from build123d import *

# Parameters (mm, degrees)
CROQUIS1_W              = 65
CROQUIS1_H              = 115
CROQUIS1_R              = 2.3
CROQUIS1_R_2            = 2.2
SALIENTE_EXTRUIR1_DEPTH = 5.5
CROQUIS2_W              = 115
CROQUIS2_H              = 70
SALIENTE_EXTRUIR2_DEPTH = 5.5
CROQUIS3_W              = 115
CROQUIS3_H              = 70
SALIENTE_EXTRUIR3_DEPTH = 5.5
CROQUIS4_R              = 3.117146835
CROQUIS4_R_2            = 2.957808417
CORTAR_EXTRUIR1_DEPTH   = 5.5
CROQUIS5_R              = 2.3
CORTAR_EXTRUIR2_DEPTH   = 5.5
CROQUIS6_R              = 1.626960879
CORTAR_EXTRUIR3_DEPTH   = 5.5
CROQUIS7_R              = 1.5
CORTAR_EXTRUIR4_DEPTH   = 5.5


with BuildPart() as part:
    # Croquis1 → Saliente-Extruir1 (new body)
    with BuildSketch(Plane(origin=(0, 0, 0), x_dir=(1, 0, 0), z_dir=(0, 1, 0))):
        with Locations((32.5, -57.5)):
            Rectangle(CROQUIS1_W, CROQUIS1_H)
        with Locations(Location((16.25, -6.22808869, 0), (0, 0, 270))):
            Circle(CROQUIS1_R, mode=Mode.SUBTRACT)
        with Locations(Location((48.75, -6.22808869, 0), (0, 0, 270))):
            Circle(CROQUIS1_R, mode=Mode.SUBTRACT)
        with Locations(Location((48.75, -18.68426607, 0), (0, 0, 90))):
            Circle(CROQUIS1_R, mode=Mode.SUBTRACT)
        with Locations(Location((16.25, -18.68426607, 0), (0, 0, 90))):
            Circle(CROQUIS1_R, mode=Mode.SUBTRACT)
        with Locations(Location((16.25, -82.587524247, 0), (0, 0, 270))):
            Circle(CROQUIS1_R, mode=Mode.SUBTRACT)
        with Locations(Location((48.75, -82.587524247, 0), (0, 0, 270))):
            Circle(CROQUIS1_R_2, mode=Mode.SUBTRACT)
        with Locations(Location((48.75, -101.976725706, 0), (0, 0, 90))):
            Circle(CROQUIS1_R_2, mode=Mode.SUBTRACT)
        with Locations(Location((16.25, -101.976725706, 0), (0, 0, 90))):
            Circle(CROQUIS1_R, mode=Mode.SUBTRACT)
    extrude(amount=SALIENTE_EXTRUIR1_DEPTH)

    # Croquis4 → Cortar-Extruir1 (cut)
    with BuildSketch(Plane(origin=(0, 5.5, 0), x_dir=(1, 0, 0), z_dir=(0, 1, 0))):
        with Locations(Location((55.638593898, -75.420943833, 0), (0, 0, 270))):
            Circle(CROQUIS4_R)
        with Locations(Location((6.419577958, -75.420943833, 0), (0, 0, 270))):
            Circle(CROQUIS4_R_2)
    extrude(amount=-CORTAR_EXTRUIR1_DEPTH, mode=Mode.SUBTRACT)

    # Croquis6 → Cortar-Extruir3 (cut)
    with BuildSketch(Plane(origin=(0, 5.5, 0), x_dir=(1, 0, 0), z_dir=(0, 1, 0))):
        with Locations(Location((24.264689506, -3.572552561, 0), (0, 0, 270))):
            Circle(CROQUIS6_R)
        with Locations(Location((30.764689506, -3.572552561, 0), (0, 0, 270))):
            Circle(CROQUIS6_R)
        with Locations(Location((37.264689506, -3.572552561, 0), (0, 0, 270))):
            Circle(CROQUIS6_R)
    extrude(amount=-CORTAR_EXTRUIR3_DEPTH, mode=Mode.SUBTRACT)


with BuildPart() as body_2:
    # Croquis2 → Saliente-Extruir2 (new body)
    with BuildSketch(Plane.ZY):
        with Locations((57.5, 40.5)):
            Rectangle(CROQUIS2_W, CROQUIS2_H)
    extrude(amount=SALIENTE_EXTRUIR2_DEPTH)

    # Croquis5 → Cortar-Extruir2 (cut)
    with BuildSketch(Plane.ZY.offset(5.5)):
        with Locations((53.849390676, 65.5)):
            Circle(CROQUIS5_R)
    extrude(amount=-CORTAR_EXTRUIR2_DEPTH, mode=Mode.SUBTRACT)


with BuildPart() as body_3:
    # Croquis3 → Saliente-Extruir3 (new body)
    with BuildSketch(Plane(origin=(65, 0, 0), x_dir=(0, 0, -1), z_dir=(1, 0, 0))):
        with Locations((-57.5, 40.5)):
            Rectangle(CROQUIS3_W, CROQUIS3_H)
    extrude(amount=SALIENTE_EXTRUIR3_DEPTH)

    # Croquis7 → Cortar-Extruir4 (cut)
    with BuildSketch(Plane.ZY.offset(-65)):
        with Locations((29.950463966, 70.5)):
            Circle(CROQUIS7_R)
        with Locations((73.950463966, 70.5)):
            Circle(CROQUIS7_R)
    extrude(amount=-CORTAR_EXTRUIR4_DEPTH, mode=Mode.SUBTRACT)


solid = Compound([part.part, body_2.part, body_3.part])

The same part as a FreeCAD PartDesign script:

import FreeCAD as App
import Part
import Sketcher


def add_polygon(sketch, points):
    """Adds a closed chain of lines whose ends are joined by coincident constraints."""
    first, n = sketch.GeometryCount, len(points)
    for a, b in zip(points, points[1:] + points[:1]):
        sketch.addGeometry(Part.LineSegment(App.Vector(*a, 0), App.Vector(*b, 0)), False)
    for i in range(n):
        sketch.addConstraint(Sketcher.Constraint("Coincident", first + i, 2, first + (i + 1) % n, 1))

doc = App.newDocument("Part")
body = doc.addObject("PartDesign::Body", "Body")

sketch1 = body.newObject("Sketcher::SketchObject", "Sketch")
sketch1.AttachmentSupport = (doc.getObject("XZ_Plane"), [""])
sketch1.MapMode = "FlatFace"
add_polygon(sketch1, [(0, 0), (0, 115), (65, 115), (65, 0)])
sketch1.addGeometry(Part.Circle(App.Vector(16.25, 101.976726, 0), App.Vector(0, 0, 1), 2.3), False)
sketch1.addGeometry(Part.Circle(App.Vector(16.25, 82.587524, 0), App.Vector(0, 0, 1), 2.3), False)
sketch1.addGeometry(Part.Circle(App.Vector(48.75, 101.976726, 0), App.Vector(0, 0, 1), 2.2), False)
sketch1.addGeometry(Part.Circle(App.Vector(48.75, 82.587524, 0), App.Vector(0, 0, 1), 2.2), False)
sketch1.addGeometry(Part.Circle(App.Vector(16.25, 18.684266, 0), App.Vector(0, 0, 1), 2.3), False)
sketch1.addGeometry(Part.Circle(App.Vector(16.25, 6.228089, 0), App.Vector(0, 0, 1), 2.3), False)
sketch1.addGeometry(Part.Circle(App.Vector(48.75, 18.684266, 0), App.Vector(0, 0, 1), 2.3), False)
sketch1.addGeometry(Part.Circle(App.Vector(48.75, 6.228089, 0), App.Vector(0, 0, 1), 2.3), False)
sketch1.addConstraint([
    Sketcher.Constraint("Vertical", 0),
    Sketcher.Constraint("Horizontal", 1),
    Sketcher.Constraint("Vertical", 2),
    Sketcher.Constraint("Horizontal", 3),
    Sketcher.Constraint("Coincident", 3, 2, -1, 1),
    Sketcher.Constraint("Equal", 4, 5),
    Sketcher.Constraint("Equal", 6, 7),
    Sketcher.Constraint("Equal", 5, 8),
    Sketcher.Constraint("Equal", 8, 9),
    Sketcher.Constraint("Equal", 9, 10),
    Sketcher.Constraint("Equal", 10, 11),
    Sketcher.Constraint("Horizontal", 4, 3, 6, 3),
    Sketcher.Constraint("Horizontal", 5, 3, 7, 3),
    Sketcher.Constraint("Horizontal", 8, 3, 10, 3),
    Sketcher.Constraint("Horizontal", 9, 3, 11, 3),
    Sketcher.Constraint("Vertical", 4, 3, 5, 3),
    Sketcher.Constraint("Vertical", 6, 3, 7, 3),
    Sketcher.Constraint("Vertical", 5, 3, 8, 3),
    Sketcher.Constraint("Vertical", 8, 3, 9, 3),
    Sketcher.Constraint("Vertical", 7, 3, 10, 3),
    Sketcher.Constraint("Vertical", 10, 3, 11, 3),
    Sketcher.Constraint("Diameter", 4, 4.6),
    Sketcher.Constraint("Diameter", 6, 4.4),
    Sketcher.Constraint("DistanceX", 1, 1, 1, 2, 65.0),
    Sketcher.Constraint("DistanceY", 0, 1, 0, 2, 115.0),
    Sketcher.Constraint("DistanceX", 4, 3, 6, 3, 32.5),
    Sketcher.Constraint("DistanceX", -1, 1, 4, 3, 16.25),
    Sketcher.Constraint("DistanceY", 5, 3, 4, 3, 19.389201),
    Sketcher.Constraint("DistanceY", -1, 1, 9, 3, 6.228089),
    Sketcher.Constraint("DistanceY", 8, 3, 5, 3, 63.903258),
    Sketcher.Constraint("DistanceY", -1, 1, 4, 3, 101.976726),
])
pad1 = body.newObject("PartDesign::Pad", "Pad")
pad1.Profile = sketch1
pad1.Length = 5.5
pad1.Reversed = True

sketch2 = body.newObject("Sketcher::SketchObject", "Sketch001")
sketch2.AttachmentSupport = (doc.getObject("XZ_Plane"), [""])
sketch2.MapMode = "FlatFace"
sketch2.AttachmentOffset = App.Placement(App.Vector(0, 0, -5.5), App.Rotation())
sketch2.addGeometry([
    Part.Circle(App.Vector(55.638594, 75.420944, 0), App.Vector(0, 0, 1), 3.117147),
    Part.Circle(App.Vector(6.419578, 75.420944, 0), App.Vector(0, 0, 1), 2.957808),
], False)
sketch2.addConstraint([
    Sketcher.Constraint("Horizontal", 0, 3, 1, 3),
    Sketcher.Constraint("Diameter", 0, 6.234294),
    Sketcher.Constraint("Diameter", 1, 5.915617),
    Sketcher.Constraint("DistanceX", -1, 1, 0, 3, 55.638594),
    Sketcher.Constraint("DistanceY", -1, 1, 0, 3, 75.420944),
    Sketcher.Constraint("DistanceX", -1, 1, 1, 3, 6.419578),
])
pocket1 = body.newObject("PartDesign::Pocket", "Pocket")
pocket1.Profile = sketch2
pocket1.Length = 5.5
pocket1.Reversed = True

sketch3 = body.newObject("Sketcher::SketchObject", "Sketch002")
sketch3.AttachmentSupport = (doc.getObject("XZ_Plane"), [""])
sketch3.MapMode = "FlatFace"
sketch3.AttachmentOffset = App.Placement(App.Vector(0, 0, -5.5), App.Rotation())
sketch3.addGeometry([
    Part.Circle(App.Vector(24.26469, 3.572553, 0), App.Vector(0, 0, 1), 1.626961),
    Part.Circle(App.Vector(30.76469, 3.572553, 0), App.Vector(0, 0, 1), 1.626961),
    Part.Circle(App.Vector(37.26469, 3.572553, 0), App.Vector(0, 0, 1), 1.626961),
], False)
sketch3.addConstraint([
    Sketcher.Constraint("Equal", 0, 1),
    Sketcher.Constraint("Equal", 1, 2),
    Sketcher.Constraint("Horizontal", 0, 3, 1, 3),
    Sketcher.Constraint("Horizontal", 1, 3, 2, 3),
    Sketcher.Constraint("DistanceX", 0, 3, 2, 3, 13.0),
    Sketcher.Constraint("DistanceX", 0, 3, 1, 3, 6.5),
    Sketcher.Constraint("Diameter", 0, 3.253922),
    Sketcher.Constraint("DistanceX", -1, 1, 0, 3, 24.26469),
    Sketcher.Constraint("DistanceY", -1, 1, 0, 3, 3.572553),
])
pocket2 = body.newObject("PartDesign::Pocket", "Pocket001")
pocket2.Profile = sketch3
pocket2.Length = 5.5
pocket2.Reversed = True
body2 = doc.addObject("PartDesign::Body", "Body001")

sketch4 = body2.newObject("Sketcher::SketchObject", "Sketch003")
sketch4.AttachmentSupport = (doc.getObject("YZ_Plane001"), [""])
sketch4.MapMode = "FlatFace"
add_polygon(sketch4, [(75.5, 0), (5.5, 0), (5.5, 115), (75.5, 115)])
sketch4.addConstraint([
    Sketcher.Constraint("Horizontal", 0),
    Sketcher.Constraint("Vertical", 1),
    Sketcher.Constraint("Horizontal", 2),
    Sketcher.Constraint("Vertical", 3),
    Sketcher.Constraint("PointOnObject", 0, 2, -1),
    Sketcher.Constraint("DistanceX", 0, 2, 0, 1, 70.0),
    Sketcher.Constraint("DistanceY", 1, 1, 1, 2, 115.0),
    Sketcher.Constraint("DistanceX", -1, 1, 0, 2, 5.5),
])
pad2 = body2.newObject("PartDesign::Pad", "Pad001")
pad2.Profile = sketch4
pad2.Length = 5.5
pad2.Reversed = True

sketch5 = body2.newObject("Sketcher::SketchObject", "Sketch004")
sketch5.AttachmentSupport = (doc.getObject("YZ_Plane001"), [""])
sketch5.MapMode = "FlatFace"
sketch5.AttachmentOffset = App.Placement(App.Vector(0, 0, -5.5), App.Rotation())
sketch5.addGeometry(Part.Circle(App.Vector(65.5, 53.849391, 0), App.Vector(0, 0, 1), 2.3), False)
sketch5.addConstraint([
    Sketcher.Constraint("Diameter", 0, 4.6),
    Sketcher.Constraint("DistanceX", -1, 1, 0, 3, 65.5),
    Sketcher.Constraint("DistanceY", -1, 1, 0, 3, 53.849391),
])
pocket3 = body2.newObject("PartDesign::Pocket", "Pocket002")
pocket3.Profile = sketch5
pocket3.Length = 5.5
pocket3.Reversed = True
body3 = doc.addObject("PartDesign::Body", "Body002")

sketch6 = body3.newObject("Sketcher::SketchObject", "Sketch005")
sketch6.AttachmentSupport = (doc.getObject("YZ_Plane002"), [""])
sketch6.MapMode = "FlatFace"
sketch6.AttachmentOffset = App.Placement(App.Vector(0, 0, 65), App.Rotation())
add_polygon(sketch6, [(75.5, 115), (5.5, 115), (5.5, 0), (75.5, 0)])
sketch6.addConstraint([
    Sketcher.Constraint("Horizontal", 0),
    Sketcher.Constraint("Vertical", 1),
    Sketcher.Constraint("Horizontal", 2),
    Sketcher.Constraint("Vertical", 3),
    Sketcher.Constraint("PointOnObject", 1, 2, -1),
    Sketcher.Constraint("DistanceX", 0, 2, 0, 1, 70.0),
    Sketcher.Constraint("DistanceY", 1, 2, 1, 1, 115.0),
    Sketcher.Constraint("DistanceX", -1, 1, 0, 2, 5.5),
])
pad3 = body3.newObject("PartDesign::Pad", "Pad002")
pad3.Profile = sketch6
pad3.Length = 5.5

sketch7 = body3.newObject("Sketcher::SketchObject", "Sketch006")
sketch7.AttachmentSupport = (doc.getObject("YZ_Plane002"), [""])
sketch7.MapMode = "FlatFace"
sketch7.AttachmentOffset = App.Placement(App.Vector(0, 0, 65), App.Rotation())
sketch7.addGeometry([
    Part.Circle(App.Vector(70.5, 29.950464, 0), App.Vector(0, 0, 1), 1.5),
    Part.Circle(App.Vector(70.5, 73.950464, 0), App.Vector(0, 0, 1), 1.5),
], False)
sketch7.addConstraint([
    Sketcher.Constraint("Equal", 0, 1),
    Sketcher.Constraint("Vertical", 0, 3, 1, 3),
    Sketcher.Constraint("Diameter", 0, 3.0),
    Sketcher.Constraint("DistanceY", 0, 3, 1, 3, 44.0),
    Sketcher.Constraint("DistanceX", -1, 1, 0, 3, 70.5),
    Sketcher.Constraint("DistanceY", -1, 1, 0, 3, 29.950464),
])
pocket4 = body3.newObject("PartDesign::Pocket", "Pocket003")
pocket4.Profile = sketch7
pocket4.Length = 5.5
pocket4.Reversed = True

doc.recompute()
